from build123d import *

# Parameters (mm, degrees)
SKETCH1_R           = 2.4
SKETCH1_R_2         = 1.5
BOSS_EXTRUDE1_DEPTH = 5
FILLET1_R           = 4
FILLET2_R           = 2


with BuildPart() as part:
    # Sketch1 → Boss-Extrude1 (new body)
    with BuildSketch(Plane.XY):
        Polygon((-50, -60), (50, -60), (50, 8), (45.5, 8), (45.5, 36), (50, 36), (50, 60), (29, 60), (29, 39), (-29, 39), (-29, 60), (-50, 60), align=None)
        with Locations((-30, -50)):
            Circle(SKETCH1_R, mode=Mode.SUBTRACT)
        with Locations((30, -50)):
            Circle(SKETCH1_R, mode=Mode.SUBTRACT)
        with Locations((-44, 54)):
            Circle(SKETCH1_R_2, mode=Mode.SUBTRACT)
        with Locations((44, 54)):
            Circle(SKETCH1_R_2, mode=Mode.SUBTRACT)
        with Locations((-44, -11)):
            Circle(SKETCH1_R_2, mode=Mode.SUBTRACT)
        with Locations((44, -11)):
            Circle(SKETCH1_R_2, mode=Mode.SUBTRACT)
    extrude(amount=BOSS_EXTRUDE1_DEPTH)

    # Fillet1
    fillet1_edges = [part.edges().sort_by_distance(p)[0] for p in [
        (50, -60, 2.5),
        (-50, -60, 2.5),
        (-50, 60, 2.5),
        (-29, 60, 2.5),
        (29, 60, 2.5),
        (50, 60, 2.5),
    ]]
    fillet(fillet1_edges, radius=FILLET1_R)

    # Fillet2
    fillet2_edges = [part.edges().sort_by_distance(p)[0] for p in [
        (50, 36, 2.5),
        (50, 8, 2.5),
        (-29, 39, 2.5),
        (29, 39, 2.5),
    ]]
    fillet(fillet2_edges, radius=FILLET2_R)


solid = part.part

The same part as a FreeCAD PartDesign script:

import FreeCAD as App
import Part
import Sketcher


def edges_at(feature, points):
    """Names of the edges that pass closest to the given points."""
    edges = feature.Shape.Edges
    near = lambda p: min(range(len(edges)), key=lambda i: edges[i].distToShape(Part.Vertex(*p))[0])
    return sorted({f"Edge{near(p) + 1}" for p in points})


def add_polygon(sketch, points):
    """Adds a closed chain of lines whose ends are joined by coincident constraints."""
    first, n = sketch.GeometryCount, len(points)
    for a, b in zip(points, points[1:] + points[:1]):
        sketch.addGeometry(Part.LineSegment(App.Vector(*a, 0), App.Vector(*b, 0)), False)
    for i in range(n):
        sketch.addConstraint(Sketcher.Constraint("Coincident", first + i, 2, first + (i + 1) % n, 1))

doc = App.newDocument("Part")
body = doc.addObject("PartDesign::Body", "Body")

# Sketch on XY plane
sketch1 = doc.addObject("Sketcher::SketchObject", "Sketch")
body.addObject(sketch1)
sketch1.AttachmentSupport = (doc.XY_Plane, [""])
sketch1.MapMode = "FlatFace"
add_polygon(sketch1, [(-50, -60), (50, -60), (50, 8), (45.5, 8), (45.5, 36), (50, 36), (50, 60), (29, 60), (29, 39), (-29, 39), (-29, 60), (-50, 60)])  # lines 0-11
sketch1.addGeometry(Part.Circle(App.Vector(-30, -50, 0), App.Vector(0, 0, 1), 2.4), False)  # 12
sketch1.addGeometry(Part.Circle(App.Vector(-44, -11, 0), App.Vector(0, 0, 1), 1.5), False)  # 13
sketch1.addGeometry(Part.Circle(App.Vector(30, -50, 0), App.Vector(0, 0, 1), 2.4), False)  # 14
sketch1.addGeometry(Part.Circle(App.Vector(44, -11, 0), App.Vector(0, 0, 1), 1.5), False)  # 15
sketch1.addGeometry(Part.Circle(App.Vector(-44, 54, 0), App.Vector(0, 0, 1), 1.5), False)  # 16
sketch1.addGeometry(Part.Circle(App.Vector(44, 54, 0), App.Vector(0, 0, 1), 1.5), False)  # 17
sketch1.addConstraint([
    Sketcher.Constraint("Horizontal", 0),
    Sketcher.Constraint("Vertical", 1),
    Sketcher.Constraint("Horizontal", 2),
    Sketcher.Constraint("Vertical", 3),
    Sketcher.Constraint("Horizontal", 4),
    Sketcher.Constraint("Vertical", 5),
    Sketcher.Constraint("Horizontal", 6),
    Sketcher.Constraint("Vertical", 7),
    Sketcher.Constraint("Horizontal", 8),
    Sketcher.Constraint("Vertical", 9),
    Sketcher.Constraint("Horizontal", 10),
    Sketcher.Constraint("Vertical", 11),
    Sketcher.Constraint("Equal", 12, 14),
    Sketcher.Constraint("Equal", 13, 15),
    Sketcher.Constraint("Equal", 15, 16),
    Sketcher.Constraint("Equal", 16, 17),
    Sketcher.Constraint("Symmetric", 0, 2, 10, 2, -1, 1),
    Sketcher.Constraint("Symmetric", 5, 2, 11, 2, -1, 1),
    Sketcher.Constraint("Symmetric", 12, 3, 14, 3, -2),
    Sketcher.Constraint("Symmetric", 13, 3, 15, 3, -2),
    Sketcher.Constraint("Symmetric", 16, 3, 17, 3, -2),
    Sketcher.Constraint("Vertical", 13, 3, 16, 3),
    Sketcher.Constraint("Equal", 6, 10),
    Sketcher.Constraint("Equal", 10, 7),
    Sketcher.Constraint("Diameter", 13, 3.0),
    Sketcher.Constraint("Diameter", 12, 4.8),
    Sketcher.Constraint("DistanceX", 0, 1, 0, 2, 100.0),
    Sketcher.Constraint("DistanceX", 6, 2, 6, 1, 21.0),
    Sketcher.Constraint("DistanceY", 1, 1, 1, 2, 68.0),
    Sketcher.Constraint("DistanceY", 3, 1, 3, 2, 28.0),
    Sketcher.Constraint("DistanceY", 5, 1, 5, 2, 24.0),
    Sketcher.Constraint("DistanceX", 2, 2, 2, 1, 4.5),
    Sketcher.Constraint("DistanceX", 12, 3, -1, 1, 30.0),
    Sketcher.Constraint("DistanceY", 12, 3, -1, 1, 50.0),
    Sketcher.Constraint("DistanceX", 13, 3, -1, 1, 44.0),
    Sketcher.Constraint("DistanceY", 13, 3, -1, 1, 11.0),
    Sketcher.Constraint("DistanceY", -1, 1, 16, 3, 54.0),
])
pad1 = doc.addObject("PartDesign::Pad", "Pad")
body.addObject(pad1)
pad1.Profile = sketch1
pad1.Length = 5
doc.recompute()

fillet = doc.addObject("PartDesign::Fillet", "Fillet")
body.addObject(fillet)
fillet.Base = (pad1, edges_at(pad1, [
    (50, -60, 2.5),
    (-50, -60, 2.5),
    (-50, 60, 2.5),
    (-29, 60, 2.5),
    (29, 60, 2.5),
    (50, 60, 2.5),
]))
fillet.Radius = 4
doc.recompute()

fillet2 = doc.addObject("PartDesign::Fillet", "Fillet001")
body.addObject(fillet2)
fillet2.Base = (fillet, edges_at(fillet, [
    (50, 36, 2.5),
    (50, 8, 2.5),
    (-29, 39, 2.5),
    (29, 39, 2.5),
]))
fillet2.Radius = 2

doc.recompute()
